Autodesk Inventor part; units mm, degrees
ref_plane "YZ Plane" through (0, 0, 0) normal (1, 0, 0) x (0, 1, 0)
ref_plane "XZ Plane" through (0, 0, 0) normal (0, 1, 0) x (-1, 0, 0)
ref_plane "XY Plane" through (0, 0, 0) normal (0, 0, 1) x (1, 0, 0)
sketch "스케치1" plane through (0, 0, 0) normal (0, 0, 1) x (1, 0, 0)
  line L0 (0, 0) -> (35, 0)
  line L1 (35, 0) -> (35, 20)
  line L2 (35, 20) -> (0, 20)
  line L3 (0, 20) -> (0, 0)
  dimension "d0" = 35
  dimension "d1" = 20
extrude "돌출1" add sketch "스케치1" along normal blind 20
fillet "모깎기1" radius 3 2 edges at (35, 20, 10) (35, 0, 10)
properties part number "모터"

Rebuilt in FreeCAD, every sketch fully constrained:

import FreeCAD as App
import Part
import Sketcher
from FreeCAD import Vector


def edges_at(feature, points):
    """Names of the edges that pass closest to the given points."""
    edges = feature.Shape.Edges
    near = lambda p: min(range(len(edges)), key=lambda i: edges[i].distToShape(Part.Vertex(*p))[0])
    return sorted({f"Edge{near(p) + 1}" for p in points})

doc = App.newDocument("Part")
body = doc.addObject("PartDesign::Body", "Body")

sketch1 = body.newObject("Sketcher::SketchObject", "Sketch")
sketch1.AttachmentSupport = (doc.getObject("XY_Plane"), [""])
sketch1.MapMode = "FlatFace"
sketch1.addGeometry([
    Part.LineSegment(Vector(0, 20, 0), Vector(0, 0, 0)),
    Part.LineSegment(Vector(0, 0, 0), Vector(35, 0, 0)),
    Part.LineSegment(Vector(35, 0, 0), Vector(35, 20, 0)),
    Part.LineSegment(Vector(35, 20, 0), Vector(0, 20, 0)),
], False)
sketch1.addConstraint([
    Sketcher.Constraint("Coincident", 0, 2, 1, 1),
    Sketcher.Constraint("Coincident", 1, 2, 2, 1),
    Sketcher.Constraint("Coincident", 2, 2, 3, 1),
    Sketcher.Constraint("Coincident", 3, 2, 0, 1),
    Sketcher.Constraint("Vertical", 0),
    Sketcher.Constraint("Horizontal", 1),
    Sketcher.Constraint("Vertical", 2),
    Sketcher.Constraint("Horizontal", 3),
    Sketcher.Constraint("Coincident", 0, 2, -1, 1),
    Sketcher.Constraint("DistanceX", 1, 1, 1, 2, 35.0),
    Sketcher.Constraint("DistanceY", 0, 2, 0, 1, 20.0),
])
pad1 = body.newObject("PartDesign::Pad", "Pad")
pad1.Profile = sketch1
pad1.Length = 20
doc.recompute()

fillet = body.newObject("PartDesign::Fillet", "Fillet")
fillet.Base = (pad1, edges_at(pad1, [(35, 20, 10), (35, 0, 10)]))
fillet.Radius = 3

doc.recompute()
